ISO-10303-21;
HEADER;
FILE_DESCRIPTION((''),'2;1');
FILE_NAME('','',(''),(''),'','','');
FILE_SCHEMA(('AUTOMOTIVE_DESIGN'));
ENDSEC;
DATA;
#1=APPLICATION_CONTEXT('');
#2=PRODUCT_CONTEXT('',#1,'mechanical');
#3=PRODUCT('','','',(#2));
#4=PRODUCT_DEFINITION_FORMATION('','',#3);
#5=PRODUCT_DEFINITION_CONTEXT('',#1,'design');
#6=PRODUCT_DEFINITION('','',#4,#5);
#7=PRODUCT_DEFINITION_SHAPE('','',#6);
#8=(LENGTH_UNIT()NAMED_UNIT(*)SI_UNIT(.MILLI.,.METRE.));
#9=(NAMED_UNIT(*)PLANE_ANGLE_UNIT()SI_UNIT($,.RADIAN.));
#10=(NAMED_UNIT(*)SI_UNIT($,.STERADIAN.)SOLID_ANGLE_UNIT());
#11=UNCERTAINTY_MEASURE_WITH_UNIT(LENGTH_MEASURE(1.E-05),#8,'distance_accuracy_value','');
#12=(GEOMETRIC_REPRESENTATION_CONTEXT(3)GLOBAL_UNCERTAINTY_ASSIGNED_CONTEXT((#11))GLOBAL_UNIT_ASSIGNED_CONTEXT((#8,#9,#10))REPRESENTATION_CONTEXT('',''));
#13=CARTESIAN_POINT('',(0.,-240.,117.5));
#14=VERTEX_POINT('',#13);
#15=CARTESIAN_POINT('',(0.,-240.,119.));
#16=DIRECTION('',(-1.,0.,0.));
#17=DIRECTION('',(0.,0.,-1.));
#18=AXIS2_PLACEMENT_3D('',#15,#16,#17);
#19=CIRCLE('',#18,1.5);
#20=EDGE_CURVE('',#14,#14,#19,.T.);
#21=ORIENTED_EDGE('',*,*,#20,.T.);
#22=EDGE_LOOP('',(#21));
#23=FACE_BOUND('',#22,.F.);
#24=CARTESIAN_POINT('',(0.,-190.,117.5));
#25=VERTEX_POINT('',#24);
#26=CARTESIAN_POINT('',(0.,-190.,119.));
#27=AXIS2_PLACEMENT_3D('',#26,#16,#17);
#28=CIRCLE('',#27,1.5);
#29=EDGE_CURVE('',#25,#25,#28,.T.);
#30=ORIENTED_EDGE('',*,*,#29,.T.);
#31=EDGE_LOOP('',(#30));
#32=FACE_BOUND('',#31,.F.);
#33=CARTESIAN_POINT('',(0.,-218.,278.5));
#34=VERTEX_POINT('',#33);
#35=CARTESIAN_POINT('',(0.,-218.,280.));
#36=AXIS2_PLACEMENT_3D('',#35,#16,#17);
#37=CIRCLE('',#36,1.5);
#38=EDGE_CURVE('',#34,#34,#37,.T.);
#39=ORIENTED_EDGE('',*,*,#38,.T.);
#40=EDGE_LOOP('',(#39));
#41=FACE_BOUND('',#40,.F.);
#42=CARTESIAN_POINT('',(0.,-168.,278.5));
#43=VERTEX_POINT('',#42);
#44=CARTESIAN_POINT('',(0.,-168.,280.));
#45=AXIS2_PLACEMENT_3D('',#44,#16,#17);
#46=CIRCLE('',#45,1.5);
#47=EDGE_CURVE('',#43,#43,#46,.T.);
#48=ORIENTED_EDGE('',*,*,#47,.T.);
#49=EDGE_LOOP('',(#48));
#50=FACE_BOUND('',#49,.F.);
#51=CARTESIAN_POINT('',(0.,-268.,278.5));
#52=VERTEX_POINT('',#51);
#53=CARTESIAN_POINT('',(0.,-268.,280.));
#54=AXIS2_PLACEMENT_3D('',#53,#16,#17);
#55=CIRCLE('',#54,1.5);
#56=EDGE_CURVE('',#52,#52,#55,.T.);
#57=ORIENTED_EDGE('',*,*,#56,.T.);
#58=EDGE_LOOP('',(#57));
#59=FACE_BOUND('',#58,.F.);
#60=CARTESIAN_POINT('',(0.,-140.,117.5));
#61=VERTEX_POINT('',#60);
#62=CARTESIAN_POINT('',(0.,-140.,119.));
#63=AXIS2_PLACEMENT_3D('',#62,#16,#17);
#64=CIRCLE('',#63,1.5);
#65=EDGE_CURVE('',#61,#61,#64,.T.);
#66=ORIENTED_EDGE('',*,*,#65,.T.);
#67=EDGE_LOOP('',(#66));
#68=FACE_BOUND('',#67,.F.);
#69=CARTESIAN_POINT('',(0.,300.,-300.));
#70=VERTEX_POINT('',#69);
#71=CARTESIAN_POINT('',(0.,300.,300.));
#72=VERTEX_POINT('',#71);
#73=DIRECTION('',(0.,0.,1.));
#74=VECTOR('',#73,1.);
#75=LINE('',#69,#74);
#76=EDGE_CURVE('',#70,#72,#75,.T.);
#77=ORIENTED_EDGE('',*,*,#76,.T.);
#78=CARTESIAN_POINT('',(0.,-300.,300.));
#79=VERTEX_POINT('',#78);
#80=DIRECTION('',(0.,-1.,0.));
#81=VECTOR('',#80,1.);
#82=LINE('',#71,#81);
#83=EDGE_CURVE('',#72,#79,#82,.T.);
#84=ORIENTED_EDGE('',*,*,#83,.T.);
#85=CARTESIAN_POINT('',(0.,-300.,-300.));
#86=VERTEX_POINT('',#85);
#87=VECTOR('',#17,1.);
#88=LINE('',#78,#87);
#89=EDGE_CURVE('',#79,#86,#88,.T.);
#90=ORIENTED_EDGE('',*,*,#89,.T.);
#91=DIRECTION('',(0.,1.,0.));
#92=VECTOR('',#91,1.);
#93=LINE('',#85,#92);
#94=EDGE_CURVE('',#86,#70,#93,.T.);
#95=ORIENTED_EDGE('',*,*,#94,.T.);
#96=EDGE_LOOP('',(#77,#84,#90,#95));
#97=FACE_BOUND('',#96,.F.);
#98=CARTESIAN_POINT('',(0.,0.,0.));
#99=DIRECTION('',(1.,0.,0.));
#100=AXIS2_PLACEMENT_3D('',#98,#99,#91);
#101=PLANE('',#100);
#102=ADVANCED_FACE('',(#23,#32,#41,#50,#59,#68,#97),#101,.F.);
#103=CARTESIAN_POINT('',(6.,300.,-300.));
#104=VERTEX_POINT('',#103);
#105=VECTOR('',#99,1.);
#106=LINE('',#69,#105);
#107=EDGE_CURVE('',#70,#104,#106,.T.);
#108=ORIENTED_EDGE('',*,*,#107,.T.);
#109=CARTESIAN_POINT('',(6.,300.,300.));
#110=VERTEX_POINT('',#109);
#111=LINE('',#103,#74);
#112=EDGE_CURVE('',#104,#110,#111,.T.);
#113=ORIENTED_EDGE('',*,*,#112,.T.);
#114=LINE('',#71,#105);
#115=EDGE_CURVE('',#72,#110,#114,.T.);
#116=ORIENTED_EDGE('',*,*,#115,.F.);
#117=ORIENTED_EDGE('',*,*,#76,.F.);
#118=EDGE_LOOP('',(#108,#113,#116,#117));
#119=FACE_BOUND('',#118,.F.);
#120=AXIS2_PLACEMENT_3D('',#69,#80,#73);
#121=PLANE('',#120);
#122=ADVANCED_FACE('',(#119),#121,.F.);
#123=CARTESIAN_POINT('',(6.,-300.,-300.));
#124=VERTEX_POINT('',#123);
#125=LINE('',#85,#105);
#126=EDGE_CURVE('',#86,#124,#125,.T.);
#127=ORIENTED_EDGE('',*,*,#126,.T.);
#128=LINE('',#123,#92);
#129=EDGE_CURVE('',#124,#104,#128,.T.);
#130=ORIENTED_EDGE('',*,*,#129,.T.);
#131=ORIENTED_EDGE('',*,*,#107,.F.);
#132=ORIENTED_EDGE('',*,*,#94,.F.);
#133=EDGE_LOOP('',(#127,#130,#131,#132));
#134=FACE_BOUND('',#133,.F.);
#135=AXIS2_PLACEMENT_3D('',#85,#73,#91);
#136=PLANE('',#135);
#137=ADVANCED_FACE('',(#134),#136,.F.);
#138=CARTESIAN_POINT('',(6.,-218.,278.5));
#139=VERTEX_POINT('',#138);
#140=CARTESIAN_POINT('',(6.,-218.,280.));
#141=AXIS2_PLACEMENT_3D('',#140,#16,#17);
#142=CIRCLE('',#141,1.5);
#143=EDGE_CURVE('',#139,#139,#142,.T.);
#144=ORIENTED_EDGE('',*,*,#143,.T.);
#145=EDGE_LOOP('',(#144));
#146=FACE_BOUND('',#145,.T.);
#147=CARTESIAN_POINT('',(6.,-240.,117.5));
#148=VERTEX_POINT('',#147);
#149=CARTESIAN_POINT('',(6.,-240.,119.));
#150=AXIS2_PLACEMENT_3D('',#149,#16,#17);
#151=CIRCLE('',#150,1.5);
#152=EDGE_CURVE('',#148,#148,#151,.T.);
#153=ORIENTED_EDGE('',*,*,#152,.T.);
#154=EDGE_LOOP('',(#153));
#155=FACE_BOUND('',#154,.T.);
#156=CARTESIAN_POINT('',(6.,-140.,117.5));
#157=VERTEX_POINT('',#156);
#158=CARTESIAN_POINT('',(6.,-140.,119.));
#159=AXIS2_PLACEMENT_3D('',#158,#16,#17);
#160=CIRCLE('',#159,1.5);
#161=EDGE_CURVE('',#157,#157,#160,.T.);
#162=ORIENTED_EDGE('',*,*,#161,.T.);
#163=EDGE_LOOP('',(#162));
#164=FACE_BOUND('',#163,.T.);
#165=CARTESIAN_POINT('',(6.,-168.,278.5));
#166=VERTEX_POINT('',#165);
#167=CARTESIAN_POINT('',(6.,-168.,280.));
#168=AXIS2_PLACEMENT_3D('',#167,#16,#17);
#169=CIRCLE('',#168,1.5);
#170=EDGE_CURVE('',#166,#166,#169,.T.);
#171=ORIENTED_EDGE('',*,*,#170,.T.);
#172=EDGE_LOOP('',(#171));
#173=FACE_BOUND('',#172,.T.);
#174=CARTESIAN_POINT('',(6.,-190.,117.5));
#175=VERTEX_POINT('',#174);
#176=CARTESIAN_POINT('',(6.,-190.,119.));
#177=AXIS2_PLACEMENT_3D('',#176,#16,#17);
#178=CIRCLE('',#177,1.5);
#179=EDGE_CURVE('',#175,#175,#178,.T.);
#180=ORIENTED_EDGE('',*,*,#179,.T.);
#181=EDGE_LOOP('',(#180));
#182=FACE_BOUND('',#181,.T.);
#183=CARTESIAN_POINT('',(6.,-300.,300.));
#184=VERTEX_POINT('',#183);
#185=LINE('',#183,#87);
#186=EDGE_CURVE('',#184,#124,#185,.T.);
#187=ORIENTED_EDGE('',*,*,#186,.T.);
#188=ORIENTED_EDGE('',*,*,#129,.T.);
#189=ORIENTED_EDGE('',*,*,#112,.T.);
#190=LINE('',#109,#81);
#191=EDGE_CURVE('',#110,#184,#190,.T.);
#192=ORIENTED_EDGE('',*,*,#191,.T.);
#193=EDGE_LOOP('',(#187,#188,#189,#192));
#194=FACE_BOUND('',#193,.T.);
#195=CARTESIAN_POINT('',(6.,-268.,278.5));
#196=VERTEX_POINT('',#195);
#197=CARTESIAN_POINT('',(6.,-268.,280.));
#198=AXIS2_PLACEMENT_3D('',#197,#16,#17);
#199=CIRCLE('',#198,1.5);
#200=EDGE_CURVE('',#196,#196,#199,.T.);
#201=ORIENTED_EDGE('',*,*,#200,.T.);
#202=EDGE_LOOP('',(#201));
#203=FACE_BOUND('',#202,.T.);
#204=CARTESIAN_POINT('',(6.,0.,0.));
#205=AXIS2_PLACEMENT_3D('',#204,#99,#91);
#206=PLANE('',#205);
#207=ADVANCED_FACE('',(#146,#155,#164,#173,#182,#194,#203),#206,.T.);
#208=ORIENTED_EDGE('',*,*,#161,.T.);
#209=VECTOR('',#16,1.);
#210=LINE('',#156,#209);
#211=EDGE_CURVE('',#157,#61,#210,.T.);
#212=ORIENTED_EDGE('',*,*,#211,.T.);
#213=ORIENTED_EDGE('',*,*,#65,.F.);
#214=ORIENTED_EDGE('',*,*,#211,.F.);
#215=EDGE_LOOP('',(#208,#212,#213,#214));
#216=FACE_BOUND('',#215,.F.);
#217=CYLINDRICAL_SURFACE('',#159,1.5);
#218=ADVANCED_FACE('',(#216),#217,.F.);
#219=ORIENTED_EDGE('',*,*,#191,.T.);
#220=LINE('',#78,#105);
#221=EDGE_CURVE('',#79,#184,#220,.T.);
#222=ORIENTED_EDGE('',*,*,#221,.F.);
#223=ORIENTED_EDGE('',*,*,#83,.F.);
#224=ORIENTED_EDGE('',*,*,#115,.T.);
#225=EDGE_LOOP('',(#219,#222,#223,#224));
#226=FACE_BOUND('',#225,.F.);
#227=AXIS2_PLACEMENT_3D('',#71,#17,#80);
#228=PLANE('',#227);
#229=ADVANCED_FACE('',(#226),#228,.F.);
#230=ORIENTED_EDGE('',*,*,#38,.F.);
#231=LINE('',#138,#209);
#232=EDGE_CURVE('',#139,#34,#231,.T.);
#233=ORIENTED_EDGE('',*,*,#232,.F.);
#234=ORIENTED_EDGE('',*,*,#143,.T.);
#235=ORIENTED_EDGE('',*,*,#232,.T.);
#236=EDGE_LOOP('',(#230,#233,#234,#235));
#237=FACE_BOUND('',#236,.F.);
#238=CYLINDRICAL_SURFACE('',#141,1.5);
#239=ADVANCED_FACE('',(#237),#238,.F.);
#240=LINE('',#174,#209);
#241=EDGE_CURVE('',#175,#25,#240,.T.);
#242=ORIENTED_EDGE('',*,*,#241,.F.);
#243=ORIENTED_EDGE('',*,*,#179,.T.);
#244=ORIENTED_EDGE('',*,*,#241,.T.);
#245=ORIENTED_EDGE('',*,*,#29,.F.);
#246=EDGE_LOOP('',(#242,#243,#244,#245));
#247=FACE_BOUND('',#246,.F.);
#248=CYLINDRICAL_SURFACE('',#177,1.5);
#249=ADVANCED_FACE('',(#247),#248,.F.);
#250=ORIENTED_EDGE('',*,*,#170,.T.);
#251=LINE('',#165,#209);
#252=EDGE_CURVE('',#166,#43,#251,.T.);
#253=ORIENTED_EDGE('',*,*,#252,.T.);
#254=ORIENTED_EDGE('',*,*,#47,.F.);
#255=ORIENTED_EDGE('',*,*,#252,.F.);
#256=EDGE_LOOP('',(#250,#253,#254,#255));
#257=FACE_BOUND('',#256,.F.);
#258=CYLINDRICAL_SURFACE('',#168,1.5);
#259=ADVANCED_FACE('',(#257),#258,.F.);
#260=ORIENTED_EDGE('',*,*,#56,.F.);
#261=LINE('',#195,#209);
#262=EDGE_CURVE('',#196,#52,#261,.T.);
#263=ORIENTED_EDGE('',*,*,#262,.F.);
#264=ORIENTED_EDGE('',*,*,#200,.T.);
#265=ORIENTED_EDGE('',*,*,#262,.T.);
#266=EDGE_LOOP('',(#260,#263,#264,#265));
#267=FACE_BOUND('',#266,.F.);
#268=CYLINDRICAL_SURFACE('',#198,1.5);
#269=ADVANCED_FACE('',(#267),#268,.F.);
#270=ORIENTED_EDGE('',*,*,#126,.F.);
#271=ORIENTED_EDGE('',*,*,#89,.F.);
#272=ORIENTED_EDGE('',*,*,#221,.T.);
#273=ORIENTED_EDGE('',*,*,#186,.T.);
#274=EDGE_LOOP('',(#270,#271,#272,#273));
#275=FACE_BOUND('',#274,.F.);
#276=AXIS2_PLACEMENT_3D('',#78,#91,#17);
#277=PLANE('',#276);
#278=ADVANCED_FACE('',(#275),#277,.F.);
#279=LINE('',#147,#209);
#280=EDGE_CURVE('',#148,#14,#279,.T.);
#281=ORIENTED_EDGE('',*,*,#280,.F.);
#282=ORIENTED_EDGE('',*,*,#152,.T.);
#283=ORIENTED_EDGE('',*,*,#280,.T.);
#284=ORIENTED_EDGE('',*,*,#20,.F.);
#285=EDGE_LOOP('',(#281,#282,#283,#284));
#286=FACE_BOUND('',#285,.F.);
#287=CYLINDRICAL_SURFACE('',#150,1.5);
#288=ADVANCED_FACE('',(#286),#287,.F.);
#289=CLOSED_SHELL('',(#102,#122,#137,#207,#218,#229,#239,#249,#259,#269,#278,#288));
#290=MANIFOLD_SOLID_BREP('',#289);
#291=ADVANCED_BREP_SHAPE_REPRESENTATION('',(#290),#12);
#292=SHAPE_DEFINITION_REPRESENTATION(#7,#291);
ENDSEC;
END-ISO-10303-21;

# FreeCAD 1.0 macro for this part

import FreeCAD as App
import Part
import Sketcher
from FreeCAD import Vector

doc = App.newDocument("Part")
body = doc.addObject("PartDesign::Body", "Body")

# Sketch on YZ plane
sketch1 = body.newObject("Sketcher::SketchObject", "Sketch")
sketch1.AttachmentSupport = (doc.getObject("YZ_Plane"), [""])
sketch1.MapMode = "FlatFace"
sketch1.addGeometry([
    Part.LineSegment(Vector(-300, 300, 0), Vector(-300, -300, 0)),
    Part.LineSegment(Vector(-300, -300, 0), Vector(300, -300, 0)),
    Part.LineSegment(Vector(300, -300, 0), Vector(300, 300, 0)),
    Part.LineSegment(Vector(300, 300, 0), Vector(-300, 300, 0)),
], False)
sketch1.addConstraint([
    Sketcher.Constraint("Coincident", 0, 2, 1, 1),
    Sketcher.Constraint("Coincident", 1, 2, 2, 1),
    Sketcher.Constraint("Coincident", 2, 2, 3, 1),
    Sketcher.Constraint("Coincident", 3, 2, 0, 1),
    Sketcher.Constraint("Vertical", 0),
    Sketcher.Constraint("Horizontal", 1),
    Sketcher.Constraint("Vertical", 2),
    Sketcher.Constraint("Horizontal", 3),
    Sketcher.Constraint("Symmetric", 0, 2, 2, 2, -1, 1),
    Sketcher.Constraint("Equal", 3, 0),
    Sketcher.Constraint("DistanceX", 1, 1, 1, 2, 600.0),
])
pad1 = body.newObject("PartDesign::Pad", "Pad")
pad1.Profile = sketch1
pad1.Length = 6

# Sketch on YZ plane
sketch2 = body.newObject("Sketcher::SketchObject", "Sketch001")
sketch2.AttachmentSupport = (doc.getObject("YZ_Plane"), [""])
sketch2.MapMode = "FlatFace"
sketch2.AttachmentOffset = App.Placement(Vector(0, 0, 6), App.Rotation())
sketch2.addGeometry([
    Part.Circle(Vector(-268, 280, 0), Vector(0, 0, 1), 1.5),
    Part.Circle(Vector(-240, 119, 0), Vector(0, 0, 1), 1.5),
], False)
sketch2.addConstraint([
    Sketcher.Constraint("Equal", 0, 1),
    Sketcher.Constraint("Diameter", 0, 3.0),
    Sketcher.Constraint("DistanceX", 0, 3, -1, 1, 268.0),
    Sketcher.Constraint("DistanceY", -1, 1, 0, 3, 280.0),
    Sketcher.Constraint("DistanceX", 1, 3, -1, 1, 240.0),
    Sketcher.Constraint("DistanceY", -1, 1, 1, 3, 119.0),
])
doc.recompute()
hole = body.newObject("PartDesign::Hole", "Hole")
hole.Profile = sketch2
hole.ThreadType = "None"
hole.Diameter = 3
hole.DepthType = "ThroughAll"
doc.recompute()

linearpattern = body.newObject("PartDesign::LinearPattern", "LinearPattern")
linearpattern.Originals = [hole]
linearpattern.Direction = (doc.getObject("Y_Axis"), [""])
linearpattern.Mode = "offset"
linearpattern.Offset = 50
linearpattern.Occurrences = 3
body.Tip = linearpattern

doc.recompute()
